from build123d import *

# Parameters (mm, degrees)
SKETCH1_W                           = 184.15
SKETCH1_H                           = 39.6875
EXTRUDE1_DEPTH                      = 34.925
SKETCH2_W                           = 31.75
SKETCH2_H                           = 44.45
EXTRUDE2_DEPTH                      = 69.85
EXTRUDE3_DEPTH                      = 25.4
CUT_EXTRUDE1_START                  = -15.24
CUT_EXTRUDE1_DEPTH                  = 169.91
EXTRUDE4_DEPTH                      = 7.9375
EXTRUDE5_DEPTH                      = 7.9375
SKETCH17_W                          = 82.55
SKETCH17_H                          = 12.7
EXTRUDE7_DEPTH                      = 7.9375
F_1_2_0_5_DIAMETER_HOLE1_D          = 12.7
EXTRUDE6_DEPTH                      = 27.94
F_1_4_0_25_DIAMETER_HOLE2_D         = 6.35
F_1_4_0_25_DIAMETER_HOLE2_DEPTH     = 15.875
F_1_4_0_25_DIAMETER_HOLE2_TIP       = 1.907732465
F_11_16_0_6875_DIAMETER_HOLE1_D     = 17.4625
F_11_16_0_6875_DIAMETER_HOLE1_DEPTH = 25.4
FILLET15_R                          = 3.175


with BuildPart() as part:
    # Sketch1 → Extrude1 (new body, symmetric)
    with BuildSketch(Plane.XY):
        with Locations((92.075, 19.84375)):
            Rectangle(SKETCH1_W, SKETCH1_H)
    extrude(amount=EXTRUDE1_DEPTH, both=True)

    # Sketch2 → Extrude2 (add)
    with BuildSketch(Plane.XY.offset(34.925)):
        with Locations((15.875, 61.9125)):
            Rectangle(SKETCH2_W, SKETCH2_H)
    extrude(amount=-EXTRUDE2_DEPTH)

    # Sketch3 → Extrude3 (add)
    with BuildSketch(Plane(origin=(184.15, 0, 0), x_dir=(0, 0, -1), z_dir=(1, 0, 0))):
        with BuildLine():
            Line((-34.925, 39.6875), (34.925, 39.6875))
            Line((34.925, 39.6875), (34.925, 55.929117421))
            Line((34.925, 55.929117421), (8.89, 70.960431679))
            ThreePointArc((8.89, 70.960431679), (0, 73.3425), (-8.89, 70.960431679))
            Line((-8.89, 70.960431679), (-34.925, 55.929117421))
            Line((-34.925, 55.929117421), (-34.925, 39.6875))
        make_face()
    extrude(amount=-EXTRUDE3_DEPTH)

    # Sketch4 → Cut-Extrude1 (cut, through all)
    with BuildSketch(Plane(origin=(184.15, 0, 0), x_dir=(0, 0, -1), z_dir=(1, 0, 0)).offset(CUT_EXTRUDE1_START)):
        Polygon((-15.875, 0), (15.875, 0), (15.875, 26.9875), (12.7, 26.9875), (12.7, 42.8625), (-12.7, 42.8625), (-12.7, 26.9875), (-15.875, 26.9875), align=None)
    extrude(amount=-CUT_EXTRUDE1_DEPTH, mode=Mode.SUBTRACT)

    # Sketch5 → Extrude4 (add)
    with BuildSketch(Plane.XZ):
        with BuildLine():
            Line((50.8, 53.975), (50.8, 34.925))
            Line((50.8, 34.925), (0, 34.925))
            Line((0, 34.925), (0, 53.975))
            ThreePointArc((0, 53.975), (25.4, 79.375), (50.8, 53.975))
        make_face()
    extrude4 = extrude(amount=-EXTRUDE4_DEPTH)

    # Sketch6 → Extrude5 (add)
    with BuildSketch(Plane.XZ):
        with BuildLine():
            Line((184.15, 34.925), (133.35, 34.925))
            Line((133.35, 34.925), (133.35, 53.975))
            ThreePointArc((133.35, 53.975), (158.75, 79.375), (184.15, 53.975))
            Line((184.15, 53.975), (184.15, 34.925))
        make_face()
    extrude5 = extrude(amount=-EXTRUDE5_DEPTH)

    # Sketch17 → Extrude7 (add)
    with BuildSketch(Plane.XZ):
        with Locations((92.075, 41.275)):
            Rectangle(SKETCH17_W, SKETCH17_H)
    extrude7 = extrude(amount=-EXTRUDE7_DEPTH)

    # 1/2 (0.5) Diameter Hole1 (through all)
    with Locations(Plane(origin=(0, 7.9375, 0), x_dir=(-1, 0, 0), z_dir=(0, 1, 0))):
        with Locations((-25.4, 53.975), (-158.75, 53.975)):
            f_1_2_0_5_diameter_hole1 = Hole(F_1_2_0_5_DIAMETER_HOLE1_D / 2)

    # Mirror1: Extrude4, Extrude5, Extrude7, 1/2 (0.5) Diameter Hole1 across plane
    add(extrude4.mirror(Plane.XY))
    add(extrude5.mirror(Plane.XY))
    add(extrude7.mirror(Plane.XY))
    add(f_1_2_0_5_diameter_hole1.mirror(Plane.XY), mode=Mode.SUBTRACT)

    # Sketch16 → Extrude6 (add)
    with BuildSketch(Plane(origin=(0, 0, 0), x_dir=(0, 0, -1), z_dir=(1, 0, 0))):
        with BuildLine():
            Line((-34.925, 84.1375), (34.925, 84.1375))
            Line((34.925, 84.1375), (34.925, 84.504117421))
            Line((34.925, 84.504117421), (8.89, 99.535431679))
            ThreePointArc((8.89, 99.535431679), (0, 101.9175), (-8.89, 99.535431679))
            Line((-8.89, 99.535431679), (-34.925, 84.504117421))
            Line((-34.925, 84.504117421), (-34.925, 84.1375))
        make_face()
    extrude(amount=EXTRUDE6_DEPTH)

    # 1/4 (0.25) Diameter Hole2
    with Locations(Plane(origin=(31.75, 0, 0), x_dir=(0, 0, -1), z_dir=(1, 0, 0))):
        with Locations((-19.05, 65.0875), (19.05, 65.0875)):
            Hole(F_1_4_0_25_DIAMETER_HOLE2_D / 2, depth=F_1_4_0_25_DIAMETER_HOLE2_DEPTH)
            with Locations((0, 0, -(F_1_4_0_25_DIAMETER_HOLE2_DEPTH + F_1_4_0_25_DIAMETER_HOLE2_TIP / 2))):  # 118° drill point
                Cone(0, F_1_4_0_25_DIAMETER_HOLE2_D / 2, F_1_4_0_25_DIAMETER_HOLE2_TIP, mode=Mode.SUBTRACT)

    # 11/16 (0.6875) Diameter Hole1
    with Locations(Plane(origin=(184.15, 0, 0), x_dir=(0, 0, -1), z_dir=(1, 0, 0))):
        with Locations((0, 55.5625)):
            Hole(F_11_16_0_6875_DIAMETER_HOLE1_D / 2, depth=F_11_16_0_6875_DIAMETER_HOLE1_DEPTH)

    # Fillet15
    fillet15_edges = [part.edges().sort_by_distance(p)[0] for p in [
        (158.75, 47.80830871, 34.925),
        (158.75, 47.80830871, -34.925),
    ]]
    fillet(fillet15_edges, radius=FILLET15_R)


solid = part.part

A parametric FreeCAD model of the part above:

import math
import FreeCAD as App
import Part
import Sketcher
from FreeCAD import Vector
Q = App.Units.Quantity


def edges_at(feature, points):
    """Names of the edges that pass closest to the given points."""
    edges = feature.Shape.Edges
    near = lambda p: min(range(len(edges)), key=lambda i: edges[i].distToShape(Part.Vertex(*p))[0])
    return sorted({f"Edge{near(p) + 1}" for p in points})


def add_polygon(sketch, points):
    """Adds a closed chain of lines whose ends are joined by coincident constraints."""
    first, n = sketch.GeometryCount, len(points)
    for a, b in zip(points, points[1:] + points[:1]):
        sketch.addGeometry(Part.LineSegment(App.Vector(*a, 0), App.Vector(*b, 0)), False)
    for i in range(n):
        sketch.addConstraint(Sketcher.Constraint("Coincident", first + i, 2, first + (i + 1) % n, 1))

doc = App.newDocument("Part")
body = doc.addObject("PartDesign::Body", "Body")

# Sketch on XY plane
sketch1 = body.newObject("Sketcher::SketchObject", "Sketch")
sketch1.AttachmentSupport = (doc.getObject("XY_Plane"), [""])
sketch1.MapMode = "FlatFace"
add_polygon(sketch1, [(0, 40), (0, 0), (184, 0), (184, 40)])  # lines 0-3
sketch1.addConstraint(Sketcher.Constraint("Vertical", 0))
sketch1.addConstraint(Sketcher.Constraint("Horizontal", 1))
sketch1.addConstraint(Sketcher.Constraint("Vertical", 2))
sketch1.addConstraint(Sketcher.Constraint("Horizontal", 3))
sketch1.addConstraint(Sketcher.Constraint("Coincident", 0, 2, -1, 1))
sketch1.addConstraint(Sketcher.Constraint("DistanceX", 1, 1, 1, 2, Q("7.25 in")))
sketch1.addConstraint(Sketcher.Constraint("DistanceY", 0, 2, 0, 1, Q("1.5625 in")))
pad1 = body.newObject("PartDesign::Pad", "Pad")
pad1.Profile = sketch1
pad1.Length = Q("2.75 in")
pad1.Midplane = True

# Sketch on XY plane
sketch2 = body.newObject("Sketcher::SketchObject", "Sketch001")
sketch2.AttachmentSupport = (doc.getObject("XY_Plane"), [""])
sketch2.MapMode = "FlatFace"
sketch2.AttachmentOffset = App.Placement(Vector(0, 0, 1.375 * 25.4), App.Rotation())
add_polygon(sketch2, [(0, 84), (0, 40), (32, 40), (32, 84)])  # lines 0-3
sketch2.addConstraint(Sketcher.Constraint("Vertical", 0))
sketch2.addConstraint(Sketcher.Constraint("Horizontal", 1))
sketch2.addConstraint(Sketcher.Constraint("Vertical", 2))
sketch2.addConstraint(Sketcher.Constraint("Horizontal", 3))
sketch2.addConstraint(Sketcher.Constraint("PointOnObject", 0, 2, -2))
sketch2.addConstraint(Sketcher.Constraint("DistanceX", 1, 1, 1, 2, Q("1.25 in")))
sketch2.addConstraint(Sketcher.Constraint("DistanceY", 0, 2, 0, 1, Q("1.75 in")))
sketch2.addConstraint(Sketcher.Constraint("DistanceY", -1, 1, 0, 2, Q("1.5625 in")))
pad2 = body.newObject("PartDesign::Pad", "Pad001")
pad2.Profile = sketch2
pad2.Length = Q("2.75 in")
pad2.Reversed = True

# Sketch on YZ plane
sketch3 = body.newObject("Sketcher::SketchObject", "Sketch002")
sketch3.AttachmentSupport = (doc.getObject("YZ_Plane"), [""])
sketch3.MapMode = "FlatFace"
sketch3.AttachmentOffset = App.Placement(Vector(0, 0, 7.25 * 25.4), App.Rotation())
sketch3.addGeometry(Part.LineSegment(Vector(40, 35, 0), Vector(40, -35, 0)), False)
sketch3.addGeometry(Part.LineSegment(Vector(40, -35, 0), Vector(56, -35, 0)), False)
sketch3.addGeometry(Part.LineSegment(Vector(56, -35, 0), Vector(71, -9, 0)), False)
sketch3.addGeometry(Part.ArcOfCircle(Part.Circle(Vector(56, 0, 0), Vector(0, 0, 1), 18), math.radians(-30), math.radians(30)), False)
sketch3.addGeometry(Part.LineSegment(Vector(71, 9, 0), Vector(56, 35, 0)), False)
sketch3.addGeometry(Part.LineSegment(Vector(56, 35, 0), Vector(40, 35, 0)), False)
sketch3.addConstraint(Sketcher.Constraint("Coincident", 0, 2, 1, 1))
sketch3.addConstraint(Sketcher.Constraint("Coincident", 1, 2, 2, 1))
sketch3.addConstraint(Sketcher.Constraint("Tangent", 2, 2, 3, 1))
sketch3.addConstraint(Sketcher.Constraint("Tangent", 3, 2, 4, 1))
sketch3.addConstraint(Sketcher.Constraint("Coincident", 4, 2, 5, 1))
sketch3.addConstraint(Sketcher.Constraint("Coincident", 5, 2, 0, 1))
sketch3.addConstraint(Sketcher.Constraint("Vertical", 0))
sketch3.addConstraint(Sketcher.Constraint("Horizontal", 1))
sketch3.addConstraint(Sketcher.Constraint("Horizontal", 5))
sketch3.addConstraint(Sketcher.Constraint("Symmetric", 2, 2, 3, 2, -1))
sketch3.addConstraint(Sketcher.Constraint("Vertical", 1, 2, 4, 2))
sketch3.addConstraint(Sketcher.Constraint("Radius", 3, Q("0.7 in")))
sketch3.addConstraint(Sketcher.Constraint("Angle", 2, Q("60 deg")))
sketch3.addConstraint(Sketcher.Constraint("DistanceY", 0, 2, 0, 1, Q("2.75 in")))
sketch3.addConstraint(Sketcher.Constraint("DistanceX", -1, 1, 3, 3, Q("2.1875 in")))
sketch3.addConstraint(Sketcher.Constraint("DistanceX", -1, 1, 0, 2, Q("1.5625 in")))
pad3 = body.newObject("PartDesign::Pad", "Pad002")
pad3.Profile = sketch3
pad3.Length = Q("1 in")
pad3.Reversed = True

# Sketch on YZ plane
sketch4 = body.newObject("Sketcher::SketchObject", "Sketch003")
sketch4.AttachmentSupport = (doc.getObject("YZ_Plane"), [""])
sketch4.MapMode = "FlatFace"
sketch4.AttachmentOffset = App.Placement(Vector(0, 0, 6.65 * 25.4), App.Rotation())
add_polygon(sketch4, [(0, 15.9), (0, -15.9), (27, -15.9), (27, -12.7), (42.9, -12.7), (42.9, 12.7), (27, 12.7), (27, 15.9)])  # lines 0-7
sketch4.addConstraint(Sketcher.Constraint("Vertical", 0))
sketch4.addConstraint(Sketcher.Constraint("Horizontal", 1))
sketch4.addConstraint(Sketcher.Constraint("Vertical", 2))
sketch4.addConstraint(Sketcher.Constraint("Horizontal", 3))
sketch4.addConstraint(Sketcher.Constraint("Vertical", 4))
sketch4.addConstraint(Sketcher.Constraint("Horizontal", 5))
sketch4.addConstraint(Sketcher.Constraint("Vertical", 6))
sketch4.addConstraint(Sketcher.Constraint("Horizontal", 7))
sketch4.addConstraint(Sketcher.Constraint("Symmetric", 0, 2, 7, 2, -1, 1))
sketch4.addConstraint(Sketcher.Constraint("Symmetric", 2, 2, 5, 2, -1))
sketch4.addConstraint(Sketcher.Constraint("DistanceY", 4, 1, 4, 2, Q("1 in")))
sketch4.addConstraint(Sketcher.Constraint("DistanceY", 0, 2, 0, 1, Q("1.25 in")))
sketch4.addConstraint(Sketcher.Constraint("DistanceX", 1, 1, 1, 2, Q("1.0625 in")))
sketch4.addConstraint(Sketcher.Constraint("DistanceX", 3, 1, 3, 2, Q("0.625 in")))
pocket1 = body.newObject("PartDesign::Pocket", "Pocket")
pocket1.Profile = sketch4
pocket1.Type = "ThroughAll"

# Sketch on XZ plane
sketch5 = body.newObject("Sketcher::SketchObject", "Sketch004")
sketch5.AttachmentSupport = (doc.getObject("XZ_Plane"), [""])
sketch5.MapMode = "FlatFace"
sketch5.addGeometry(Part.LineSegment(Vector(51, 35, 0), Vector(51, 54, 0)), False)
sketch5.addGeometry(Part.ArcOfCircle(Part.Circle(Vector(25, 54, 0), Vector(0, 0, 1), 25), math.radians(0), math.radians(180)), False)
sketch5.addGeometry(Part.LineSegment(Vector(0, 54, 0), Vector(0, 35, 0)), False)
sketch5.addGeometry(Part.LineSegment(Vector(0, 35, 0), Vector(51, 35, 0)), False)
sketch5.addConstraint(Sketcher.Constraint("Tangent", 0, 2, 1, 1))
sketch5.addConstraint(Sketcher.Constraint("Tangent", 1, 2, 2, 1))
sketch5.addConstraint(Sketcher.Constraint("Coincident", 2, 2, 3, 1))
sketch5.addConstraint(Sketcher.Constraint("Coincident", 3, 2, 0, 1))
sketch5.addConstraint(Sketcher.Constraint("Vertical", 0))
sketch5.addConstraint(Sketcher.Constraint("Vertical", 2))
sketch5.addConstraint(Sketcher.Constraint("Horizontal", 3))
sketch5.addConstraint(Sketcher.Constraint("PointOnObject", 1, 2, -2))
sketch5.addConstraint(Sketcher.Constraint("Radius", 1, Q("1 in")))
sketch5.addConstraint(Sketcher.Constraint("DistanceY", 0, 1, 0, 2, Q("0.75 in")))
sketch5.addConstraint(Sketcher.Constraint("DistanceY", -1, 1, 1, 3, Q("2.125 in")))
pad4 = body.newObject("PartDesign::Pad", "Pad003")
pad4.Profile = sketch5
pad4.Length = Q("0.3125 in")
pad4.Reversed = True

# Sketch on XZ plane
sketch6 = body.newObject("Sketcher::SketchObject", "Sketch005")
sketch6.AttachmentSupport = (doc.getObject("XZ_Plane"), [""])
sketch6.MapMode = "FlatFace"
sketch6.addGeometry(Part.LineSegment(Vector(133, 35, 0), Vector(184, 35, 0)), False)
sketch6.addGeometry(Part.LineSegment(Vector(184, 35, 0), Vector(184, 54, 0)), False)
sketch6.addGeometry(Part.ArcOfCircle(Part.Circle(Vector(159, 54, 0), Vector(0, 0, 1), 25), math.radians(0), math.radians(180)), False)
sketch6.addGeometry(Part.LineSegment(Vector(133, 54, 0), Vector(133, 35, 0)), False)
sketch6.addConstraint(Sketcher.Constraint("Coincident", 0, 2, 1, 1))
sketch6.addConstraint(Sketcher.Constraint("Tangent", 1, 2, 2, 1))
sketch6.addConstraint(Sketcher.Constraint("Tangent", 2, 2, 3, 1))
sketch6.addConstraint(Sketcher.Constraint("Coincident", 3, 2, 0, 1))
sketch6.addConstraint(Sketcher.Constraint("Horizontal", 0))
sketch6.addConstraint(Sketcher.Constraint("Vertical", 1))
sketch6.addConstraint(Sketcher.Constraint("Vertical", 3))
sketch6.addConstraint(Sketcher.Constraint("Radius", 2, Q("1 in")))
sketch6.addConstraint(Sketcher.Constraint("DistanceY", 1, 1, 1, 2, Q("0.75 in")))
sketch6.addConstraint(Sketcher.Constraint("DistanceX", -1, 1, 2, 3, Q("6.25 in")))
sketch6.addConstraint(Sketcher.Constraint("DistanceY", -1, 1, 2, 3, Q("2.125 in")))
pad5 = body.newObject("PartDesign::Pad", "Pad004")
pad5.Profile = sketch6
pad5.Length = Q("0.3125 in")
pad5.Reversed = True

# Sketch on XZ plane
sketch7 = body.newObject("Sketcher::SketchObject", "Sketch006")
sketch7.AttachmentSupport = (doc.getObject("XZ_Plane"), [""])
sketch7.MapMode = "FlatFace"
add_polygon(sketch7, [(51, 48), (51, 35), (133, 35), (133, 48)])  # lines 0-3
sketch7.addConstraint(Sketcher.Constraint("Vertical", 0))
sketch7.addConstraint(Sketcher.Constraint("Horizontal", 1))
sketch7.addConstraint(Sketcher.Constraint("Vertical", 2))
sketch7.addConstraint(Sketcher.Constraint("Horizontal", 3))
sketch7.addConstraint(Sketcher.Constraint("DistanceY", 0, 2, 0, 1, Q("0.5 in")))
sketch7.addConstraint(Sketcher.Constraint("DistanceX", -1, 1, 0, 2, Q("2 in")))
sketch7.addConstraint(Sketcher.Constraint("DistanceX", 1, 1, 1, 2, Q("3.25 in")))
sketch7.addConstraint(Sketcher.Constraint("DistanceY", -1, 1, 0, 2, Q("1.375 in")))
pad6 = body.newObject("PartDesign::Pad", "Pad005")
pad6.Profile = sketch7
pad6.Length = Q("0.3125 in")
pad6.Reversed = True

# Sketch on XZ plane
sketch8 = body.newObject("Sketcher::SketchObject", "Sketch007")
sketch8.AttachmentSupport = (doc.getObject("XZ_Plane"), [""])
sketch8.MapMode = "FlatFace"
sketch8.AttachmentOffset = App.Placement(Vector(0, 0, -0.3125 * 25.4), App.Rotation())
sketch8.addGeometry(Part.Circle(Vector(25, 54, 0), Vector(0, 0, 1), 6), False)
sketch8.addGeometry(Part.Circle(Vector(159, 54, 0), Vector(0, 0, 1), 6), False)
sketch8.addConstraint(Sketcher.Constraint("Equal", 0, 1))
sketch8.addConstraint(Sketcher.Constraint("Horizontal", 0, 3, 1, 3))
sketch8.addConstraint(Sketcher.Constraint("Diameter", 0, Q("0.5 in")))
sketch8.addConstraint(Sketcher.Constraint("DistanceX", -1, 1, 0, 3, Q("1 in")))
sketch8.addConstraint(Sketcher.Constraint("DistanceX", -1, 1, 1, 3, Q("6.25 in")))
sketch8.addConstraint(Sketcher.Constraint("DistanceY", -1, 1, 0, 3, Q("2.125 in")))
doc.recompute()
hole = body.newObject("PartDesign::Hole", "Hole")
hole.Profile = sketch8
hole.ThreadType = "None"
hole.Diameter = Q("0.5 in")
hole.DepthType = "ThroughAll"
hole.Reversed = True
doc.recompute()

mirrored = body.newObject("PartDesign::Mirrored", "Mirrored")
mirrored.Originals = [pad4, pad5, pad6, hole]
mirrored.MirrorPlane = (doc.getObject("XY_Plane"), [""])
body.Tip = mirrored

# Sketch on YZ plane
sketch9 = body.newObject("Sketcher::SketchObject", "Sketch008")
sketch9.AttachmentSupport = (doc.getObject("YZ_Plane"), [""])
sketch9.MapMode = "FlatFace"
sketch9.addGeometry(Part.LineSegment(Vector(84.14, 34.92, 0), Vector(84.14, -34.92, 0)), False)
sketch9.addGeometry(Part.LineSegment(Vector(84.14, -34.92, 0), Vector(84.5, -34.92, 0)), False)
sketch9.addGeometry(Part.LineSegment(Vector(84.5, -34.92, 0), Vector(99.54, -8.89, 0)), False)
sketch9.addGeometry(Part.ArcOfCircle(Part.Circle(Vector(84.14, 0, 0), Vector(0, 0, 1), 17.78), math.radians(-30), math.radians(30)), False)
sketch9.addGeometry(Part.LineSegment(Vector(99.54, 8.89, 0), Vector(84.5, 34.92, 0)), False)
sketch9.addGeometry(Part.LineSegment(Vector(84.5, 34.92, 0), Vector(84.14, 34.92, 0)), False)
sketch9.addConstraint(Sketcher.Constraint("Coincident", 0, 2, 1, 1))
sketch9.addConstraint(Sketcher.Constraint("Coincident", 1, 2, 2, 1))
sketch9.addConstraint(Sketcher.Constraint("Tangent", 2, 2, 3, 1))
sketch9.addConstraint(Sketcher.Constraint("Tangent", 3, 2, 4, 1))
sketch9.addConstraint(Sketcher.Constraint("Coincident", 4, 2, 5, 1))
sketch9.addConstraint(Sketcher.Constraint("Coincident", 5, 2, 0, 1))
sketch9.addConstraint(Sketcher.Constraint("Vertical", 0))
sketch9.addConstraint(Sketcher.Constraint("Horizontal", 1))
sketch9.addConstraint(Sketcher.Constraint("Horizontal", 5))
sketch9.addConstraint(Sketcher.Constraint("Symmetric", 2, 2, 3, 2, -1))
sketch9.addConstraint(Sketcher.Constraint("Vertical", 3, 3, 0, 2))
sketch9.addConstraint(Sketcher.Constraint("Vertical", 1, 2, 4, 2))
sketch9.addConstraint(Sketcher.Constraint("Radius", 3, Q("0.7 in")))
sketch9.addConstraint(Sketcher.Constraint("Angle", 2, Q("60 deg")))
sketch9.addConstraint(Sketcher.Constraint("DistanceY", 0, 2, 0, 1, Q("2.75 in")))
sketch9.addConstraint(Sketcher.Constraint("DistanceX", -1, 1, 3, 3, Q("3.3125 in")))
pad7 = body.newObject("PartDesign::Pad", "Pad006")
pad7.Profile = sketch9
pad7.Length = Q("1.1 in")

# Sketch on YZ plane
sketch10 = body.newObject("Sketcher::SketchObject", "Sketch009")
sketch10.AttachmentSupport = (doc.getObject("YZ_Plane"), [""])
sketch10.MapMode = "FlatFace"
sketch10.AttachmentOffset = App.Placement(Vector(0, 0, 1.25 * 25.4), App.Rotation())
sketch10.addGeometry(Part.Circle(Vector(65.1, 19.1, 0), Vector(0, 0, 1), 3.2), False)
sketch10.addGeometry(Part.Circle(Vector(65.1, -19.1, 0), Vector(0, 0, 1), 3.2), False)
sketch10.addConstraint(Sketcher.Constraint("Equal", 0, 1))
sketch10.addConstraint(Sketcher.Constraint("Symmetric", 0, 3, 1, 3, -1))
sketch10.addConstraint(Sketcher.Constraint("Diameter", 0, Q("0.25 in")))
sketch10.addConstraint(Sketcher.Constraint("DistanceY", 1, 3, 0, 3, Q("1.5 in")))
sketch10.addConstraint(Sketcher.Constraint("DistanceX", -1, 1, 0, 3, Q("2.5625 in")))
doc.recompute()
hole2 = body.newObject("PartDesign::Hole", "Hole001")
hole2.Profile = sketch10
hole2.ThreadType = "None"
hole2.Diameter = Q("0.25 in")
hole2.DepthType = "Dimension"
hole2.Depth = Q("0.625 in")
hole2.DrillPoint = "Angled"
hole2.DrillPointAngle = 118

# Sketch on YZ plane
sketch11 = body.newObject("Sketcher::SketchObject", "Sketch010")
sketch11.AttachmentSupport = (doc.getObject("YZ_Plane"), [""])
sketch11.MapMode = "FlatFace"
sketch11.AttachmentOffset = App.Placement(Vector(0, 0, 7.25 * 25.4), App.Rotation())
sketch11.addGeometry(Part.Circle(Vector(56, 0, 0), Vector(0, 0, 1), 9), False)
sketch11.addConstraint(Sketcher.Constraint("PointOnObject", 0, 3, -1))
sketch11.addConstraint(Sketcher.Constraint("Diameter", 0, Q("0.6875 in")))
sketch11.addConstraint(Sketcher.Constraint("DistanceX", -1, 1, 0, 3, Q("2.1875 in")))
doc.recompute()
hole3 = body.newObject("PartDesign::Hole", "Hole002")
hole3.Profile = sketch11
hole3.ThreadType = "None"
hole3.Diameter = Q("0.6875 in")
hole3.DepthType = "Dimension"
hole3.Depth = Q("1 in")
hole3.DrillPoint = "Flat"
doc.recompute()

fillet = body.newObject("PartDesign::Fillet", "Fillet")
fillet.Base = (hole3, edges_at(hole3, [(158.75, 47.808, 34.925), (158.75, 47.808, -34.925)]))
fillet.Radius = Q("0.125 in")

doc.recompute()
